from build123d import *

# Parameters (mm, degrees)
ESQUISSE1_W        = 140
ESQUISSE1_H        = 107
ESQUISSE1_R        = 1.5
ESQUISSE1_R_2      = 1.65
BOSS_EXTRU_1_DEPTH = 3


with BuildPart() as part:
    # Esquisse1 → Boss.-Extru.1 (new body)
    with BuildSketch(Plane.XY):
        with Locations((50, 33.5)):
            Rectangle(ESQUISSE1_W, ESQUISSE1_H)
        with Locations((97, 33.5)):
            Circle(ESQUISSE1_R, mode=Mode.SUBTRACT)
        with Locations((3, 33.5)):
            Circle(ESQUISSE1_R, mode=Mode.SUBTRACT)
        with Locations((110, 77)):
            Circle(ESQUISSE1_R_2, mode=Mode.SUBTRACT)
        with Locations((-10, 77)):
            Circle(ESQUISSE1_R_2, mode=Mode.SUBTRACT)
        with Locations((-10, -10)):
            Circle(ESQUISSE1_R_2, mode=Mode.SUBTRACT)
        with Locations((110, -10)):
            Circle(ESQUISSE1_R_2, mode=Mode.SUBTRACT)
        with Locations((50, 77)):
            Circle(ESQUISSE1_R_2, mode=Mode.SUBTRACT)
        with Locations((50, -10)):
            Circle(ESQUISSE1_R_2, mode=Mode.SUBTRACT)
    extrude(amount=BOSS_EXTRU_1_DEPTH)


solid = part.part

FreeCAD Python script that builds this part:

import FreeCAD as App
import Part
import Sketcher
from FreeCAD import Vector


def add_polygon(sketch, points):
    """Adds a closed chain of lines whose ends are joined by coincident constraints."""
    first, n = sketch.GeometryCount, len(points)
    for a, b in zip(points, points[1:] + points[:1]):
        sketch.addGeometry(Part.LineSegment(App.Vector(*a, 0), App.Vector(*b, 0)), False)
    for i in range(n):
        sketch.addConstraint(Sketcher.Constraint("Coincident", first + i, 2, first + (i + 1) % n, 1))

doc = App.newDocument("Part")
params = doc.addObject("Spreadsheet::Sheet", "Params")
for row, (alias, value) in enumerate([
    ("sketch1_diameter", "3 mm"),
    ("sketch1_diameter2", "3.3 mm"),
    ("sketch1_width", "140 mm"),
    ("sketch1_height", "107 mm"),
    ("pad1_length", "3 mm"),
], start=1):
    params.set(f"A{row}", alias)
    params.set(f"B{row}", "=" + value)
    params.setAlias(f"B{row}", alias)

body = doc.addObject("PartDesign::Body", "Body")

sketch1 = doc.addObject("Sketcher::SketchObject", "Sketch")
body.addObject(sketch1)
sketch1.AttachmentSupport = (doc.XY_Plane, [""])
sketch1.MapMode = "FlatFace"
add_polygon(sketch1, [(-20, 87), (-20, -20), (120, -20), (120, 87)])
sketch1.addGeometry(Part.Circle(Vector(-10, -10, 0), Vector(0, 0, 1), 1.6), False)
sketch1.addGeometry(Part.Circle(Vector(50, -10, 0), Vector(0, 0, 1), 1.6), False)
sketch1.addGeometry(Part.Circle(Vector(110, -10, 0), Vector(0, 0, 1), 1.6), False)
sketch1.addGeometry(Part.Circle(Vector(3, 33.5, 0), Vector(0, 0, 1), 1.5), False)
sketch1.addGeometry(Part.Circle(Vector(-10, 77, 0), Vector(0, 0, 1), 1.6), False)
sketch1.addGeometry(Part.Circle(Vector(50, 77, 0), Vector(0, 0, 1), 1.6), False)
sketch1.addGeometry(Part.Circle(Vector(97, 33.5, 0), Vector(0, 0, 1), 1.5), False)
sketch1.addGeometry(Part.Circle(Vector(110, 77, 0), Vector(0, 0, 1), 1.6), False)
sketch1.addConstraint(Sketcher.Constraint("Vertical", 0))
sketch1.addConstraint(Sketcher.Constraint("Horizontal", 1))
sketch1.addConstraint(Sketcher.Constraint("Vertical", 2))
sketch1.addConstraint(Sketcher.Constraint("Horizontal", 3))
sketch1.addConstraint(Sketcher.Constraint("Equal", 4, 5))
sketch1.addConstraint(Sketcher.Constraint("Equal", 5, 6))
sketch1.addConstraint(Sketcher.Constraint("Equal", 6, 8))
sketch1.addConstraint(Sketcher.Constraint("Equal", 8, 9))
sketch1.addConstraint(Sketcher.Constraint("Equal", 7, 10))
sketch1.addConstraint(Sketcher.Constraint("Equal", 9, 11))
sketch1.addConstraint(Sketcher.Constraint("Horizontal", 4, 3, 5, 3))
sketch1.addConstraint(Sketcher.Constraint("Horizontal", 5, 3, 6, 3))
sketch1.addConstraint(Sketcher.Constraint("Horizontal", 8, 3, 9, 3))
sketch1.addConstraint(Sketcher.Constraint("Horizontal", 7, 3, 10, 3))
sketch1.addConstraint(Sketcher.Constraint("Horizontal", 9, 3, 11, 3))
sketch1.addConstraint(Sketcher.Constraint("Vertical", 4, 3, 8, 3))
sketch1.addConstraint(Sketcher.Constraint("Vertical", 5, 3, 9, 3))
sketch1.addConstraint(Sketcher.Constraint("Vertical", 6, 3, 11, 3))
sketch1.addConstraint(Sketcher.Constraint("Diameter", 7, 3.0))
sketch1.addConstraint(Sketcher.Constraint("Diameter", 4, 3.3))
sketch1.addConstraint(Sketcher.Constraint("DistanceX", 1, 1, 1, 2, 140.0))
sketch1.addConstraint(Sketcher.Constraint("DistanceY", 0, 2, 0, 1, 107.0))
sketch1.addConstraint(Sketcher.Constraint("DistanceX", 4, 3, -1, 1, 10.0))
sketch1.addConstraint(Sketcher.Constraint("DistanceY", 4, 3, -1, 1, 10.0))
sketch1.addConstraint(Sketcher.Constraint("DistanceX", -1, 1, 5, 3, 50.0))
sketch1.addConstraint(Sketcher.Constraint("DistanceX", -1, 1, 6, 3, 110.0))
sketch1.addConstraint(Sketcher.Constraint("DistanceX", -1, 1, 7, 3, 3.0))
sketch1.addConstraint(Sketcher.Constraint("DistanceY", -1, 1, 8, 3, 77.0))
sketch1.addConstraint(Sketcher.Constraint("DistanceX", -1, 1, 10, 3, 97.0))
sketch1.addConstraint(Sketcher.Constraint("DistanceX", 0, 2, -1, 1, 20.0))
sketch1.addConstraint(Sketcher.Constraint("DistanceY", 0, 2, -1, 1, 20.0))
sketch1.addConstraint(Sketcher.Constraint("DistanceY", -1, 1, 7, 3, 33.5))
sketch1.setExpression("Constraints[22]", "Params.sketch1_diameter")
sketch1.setExpression("Constraints[23]", "Params.sketch1_diameter2")
sketch1.setExpression("Constraints[24]", "Params.sketch1_width")
sketch1.setExpression("Constraints[25]", "Params.sketch1_height")
pad1 = doc.addObject("PartDesign::Pad", "Pad")
body.addObject(pad1)
pad1.Profile = sketch1
pad1.setExpression("Length", "Params.pad1_length")

doc.recompute()
